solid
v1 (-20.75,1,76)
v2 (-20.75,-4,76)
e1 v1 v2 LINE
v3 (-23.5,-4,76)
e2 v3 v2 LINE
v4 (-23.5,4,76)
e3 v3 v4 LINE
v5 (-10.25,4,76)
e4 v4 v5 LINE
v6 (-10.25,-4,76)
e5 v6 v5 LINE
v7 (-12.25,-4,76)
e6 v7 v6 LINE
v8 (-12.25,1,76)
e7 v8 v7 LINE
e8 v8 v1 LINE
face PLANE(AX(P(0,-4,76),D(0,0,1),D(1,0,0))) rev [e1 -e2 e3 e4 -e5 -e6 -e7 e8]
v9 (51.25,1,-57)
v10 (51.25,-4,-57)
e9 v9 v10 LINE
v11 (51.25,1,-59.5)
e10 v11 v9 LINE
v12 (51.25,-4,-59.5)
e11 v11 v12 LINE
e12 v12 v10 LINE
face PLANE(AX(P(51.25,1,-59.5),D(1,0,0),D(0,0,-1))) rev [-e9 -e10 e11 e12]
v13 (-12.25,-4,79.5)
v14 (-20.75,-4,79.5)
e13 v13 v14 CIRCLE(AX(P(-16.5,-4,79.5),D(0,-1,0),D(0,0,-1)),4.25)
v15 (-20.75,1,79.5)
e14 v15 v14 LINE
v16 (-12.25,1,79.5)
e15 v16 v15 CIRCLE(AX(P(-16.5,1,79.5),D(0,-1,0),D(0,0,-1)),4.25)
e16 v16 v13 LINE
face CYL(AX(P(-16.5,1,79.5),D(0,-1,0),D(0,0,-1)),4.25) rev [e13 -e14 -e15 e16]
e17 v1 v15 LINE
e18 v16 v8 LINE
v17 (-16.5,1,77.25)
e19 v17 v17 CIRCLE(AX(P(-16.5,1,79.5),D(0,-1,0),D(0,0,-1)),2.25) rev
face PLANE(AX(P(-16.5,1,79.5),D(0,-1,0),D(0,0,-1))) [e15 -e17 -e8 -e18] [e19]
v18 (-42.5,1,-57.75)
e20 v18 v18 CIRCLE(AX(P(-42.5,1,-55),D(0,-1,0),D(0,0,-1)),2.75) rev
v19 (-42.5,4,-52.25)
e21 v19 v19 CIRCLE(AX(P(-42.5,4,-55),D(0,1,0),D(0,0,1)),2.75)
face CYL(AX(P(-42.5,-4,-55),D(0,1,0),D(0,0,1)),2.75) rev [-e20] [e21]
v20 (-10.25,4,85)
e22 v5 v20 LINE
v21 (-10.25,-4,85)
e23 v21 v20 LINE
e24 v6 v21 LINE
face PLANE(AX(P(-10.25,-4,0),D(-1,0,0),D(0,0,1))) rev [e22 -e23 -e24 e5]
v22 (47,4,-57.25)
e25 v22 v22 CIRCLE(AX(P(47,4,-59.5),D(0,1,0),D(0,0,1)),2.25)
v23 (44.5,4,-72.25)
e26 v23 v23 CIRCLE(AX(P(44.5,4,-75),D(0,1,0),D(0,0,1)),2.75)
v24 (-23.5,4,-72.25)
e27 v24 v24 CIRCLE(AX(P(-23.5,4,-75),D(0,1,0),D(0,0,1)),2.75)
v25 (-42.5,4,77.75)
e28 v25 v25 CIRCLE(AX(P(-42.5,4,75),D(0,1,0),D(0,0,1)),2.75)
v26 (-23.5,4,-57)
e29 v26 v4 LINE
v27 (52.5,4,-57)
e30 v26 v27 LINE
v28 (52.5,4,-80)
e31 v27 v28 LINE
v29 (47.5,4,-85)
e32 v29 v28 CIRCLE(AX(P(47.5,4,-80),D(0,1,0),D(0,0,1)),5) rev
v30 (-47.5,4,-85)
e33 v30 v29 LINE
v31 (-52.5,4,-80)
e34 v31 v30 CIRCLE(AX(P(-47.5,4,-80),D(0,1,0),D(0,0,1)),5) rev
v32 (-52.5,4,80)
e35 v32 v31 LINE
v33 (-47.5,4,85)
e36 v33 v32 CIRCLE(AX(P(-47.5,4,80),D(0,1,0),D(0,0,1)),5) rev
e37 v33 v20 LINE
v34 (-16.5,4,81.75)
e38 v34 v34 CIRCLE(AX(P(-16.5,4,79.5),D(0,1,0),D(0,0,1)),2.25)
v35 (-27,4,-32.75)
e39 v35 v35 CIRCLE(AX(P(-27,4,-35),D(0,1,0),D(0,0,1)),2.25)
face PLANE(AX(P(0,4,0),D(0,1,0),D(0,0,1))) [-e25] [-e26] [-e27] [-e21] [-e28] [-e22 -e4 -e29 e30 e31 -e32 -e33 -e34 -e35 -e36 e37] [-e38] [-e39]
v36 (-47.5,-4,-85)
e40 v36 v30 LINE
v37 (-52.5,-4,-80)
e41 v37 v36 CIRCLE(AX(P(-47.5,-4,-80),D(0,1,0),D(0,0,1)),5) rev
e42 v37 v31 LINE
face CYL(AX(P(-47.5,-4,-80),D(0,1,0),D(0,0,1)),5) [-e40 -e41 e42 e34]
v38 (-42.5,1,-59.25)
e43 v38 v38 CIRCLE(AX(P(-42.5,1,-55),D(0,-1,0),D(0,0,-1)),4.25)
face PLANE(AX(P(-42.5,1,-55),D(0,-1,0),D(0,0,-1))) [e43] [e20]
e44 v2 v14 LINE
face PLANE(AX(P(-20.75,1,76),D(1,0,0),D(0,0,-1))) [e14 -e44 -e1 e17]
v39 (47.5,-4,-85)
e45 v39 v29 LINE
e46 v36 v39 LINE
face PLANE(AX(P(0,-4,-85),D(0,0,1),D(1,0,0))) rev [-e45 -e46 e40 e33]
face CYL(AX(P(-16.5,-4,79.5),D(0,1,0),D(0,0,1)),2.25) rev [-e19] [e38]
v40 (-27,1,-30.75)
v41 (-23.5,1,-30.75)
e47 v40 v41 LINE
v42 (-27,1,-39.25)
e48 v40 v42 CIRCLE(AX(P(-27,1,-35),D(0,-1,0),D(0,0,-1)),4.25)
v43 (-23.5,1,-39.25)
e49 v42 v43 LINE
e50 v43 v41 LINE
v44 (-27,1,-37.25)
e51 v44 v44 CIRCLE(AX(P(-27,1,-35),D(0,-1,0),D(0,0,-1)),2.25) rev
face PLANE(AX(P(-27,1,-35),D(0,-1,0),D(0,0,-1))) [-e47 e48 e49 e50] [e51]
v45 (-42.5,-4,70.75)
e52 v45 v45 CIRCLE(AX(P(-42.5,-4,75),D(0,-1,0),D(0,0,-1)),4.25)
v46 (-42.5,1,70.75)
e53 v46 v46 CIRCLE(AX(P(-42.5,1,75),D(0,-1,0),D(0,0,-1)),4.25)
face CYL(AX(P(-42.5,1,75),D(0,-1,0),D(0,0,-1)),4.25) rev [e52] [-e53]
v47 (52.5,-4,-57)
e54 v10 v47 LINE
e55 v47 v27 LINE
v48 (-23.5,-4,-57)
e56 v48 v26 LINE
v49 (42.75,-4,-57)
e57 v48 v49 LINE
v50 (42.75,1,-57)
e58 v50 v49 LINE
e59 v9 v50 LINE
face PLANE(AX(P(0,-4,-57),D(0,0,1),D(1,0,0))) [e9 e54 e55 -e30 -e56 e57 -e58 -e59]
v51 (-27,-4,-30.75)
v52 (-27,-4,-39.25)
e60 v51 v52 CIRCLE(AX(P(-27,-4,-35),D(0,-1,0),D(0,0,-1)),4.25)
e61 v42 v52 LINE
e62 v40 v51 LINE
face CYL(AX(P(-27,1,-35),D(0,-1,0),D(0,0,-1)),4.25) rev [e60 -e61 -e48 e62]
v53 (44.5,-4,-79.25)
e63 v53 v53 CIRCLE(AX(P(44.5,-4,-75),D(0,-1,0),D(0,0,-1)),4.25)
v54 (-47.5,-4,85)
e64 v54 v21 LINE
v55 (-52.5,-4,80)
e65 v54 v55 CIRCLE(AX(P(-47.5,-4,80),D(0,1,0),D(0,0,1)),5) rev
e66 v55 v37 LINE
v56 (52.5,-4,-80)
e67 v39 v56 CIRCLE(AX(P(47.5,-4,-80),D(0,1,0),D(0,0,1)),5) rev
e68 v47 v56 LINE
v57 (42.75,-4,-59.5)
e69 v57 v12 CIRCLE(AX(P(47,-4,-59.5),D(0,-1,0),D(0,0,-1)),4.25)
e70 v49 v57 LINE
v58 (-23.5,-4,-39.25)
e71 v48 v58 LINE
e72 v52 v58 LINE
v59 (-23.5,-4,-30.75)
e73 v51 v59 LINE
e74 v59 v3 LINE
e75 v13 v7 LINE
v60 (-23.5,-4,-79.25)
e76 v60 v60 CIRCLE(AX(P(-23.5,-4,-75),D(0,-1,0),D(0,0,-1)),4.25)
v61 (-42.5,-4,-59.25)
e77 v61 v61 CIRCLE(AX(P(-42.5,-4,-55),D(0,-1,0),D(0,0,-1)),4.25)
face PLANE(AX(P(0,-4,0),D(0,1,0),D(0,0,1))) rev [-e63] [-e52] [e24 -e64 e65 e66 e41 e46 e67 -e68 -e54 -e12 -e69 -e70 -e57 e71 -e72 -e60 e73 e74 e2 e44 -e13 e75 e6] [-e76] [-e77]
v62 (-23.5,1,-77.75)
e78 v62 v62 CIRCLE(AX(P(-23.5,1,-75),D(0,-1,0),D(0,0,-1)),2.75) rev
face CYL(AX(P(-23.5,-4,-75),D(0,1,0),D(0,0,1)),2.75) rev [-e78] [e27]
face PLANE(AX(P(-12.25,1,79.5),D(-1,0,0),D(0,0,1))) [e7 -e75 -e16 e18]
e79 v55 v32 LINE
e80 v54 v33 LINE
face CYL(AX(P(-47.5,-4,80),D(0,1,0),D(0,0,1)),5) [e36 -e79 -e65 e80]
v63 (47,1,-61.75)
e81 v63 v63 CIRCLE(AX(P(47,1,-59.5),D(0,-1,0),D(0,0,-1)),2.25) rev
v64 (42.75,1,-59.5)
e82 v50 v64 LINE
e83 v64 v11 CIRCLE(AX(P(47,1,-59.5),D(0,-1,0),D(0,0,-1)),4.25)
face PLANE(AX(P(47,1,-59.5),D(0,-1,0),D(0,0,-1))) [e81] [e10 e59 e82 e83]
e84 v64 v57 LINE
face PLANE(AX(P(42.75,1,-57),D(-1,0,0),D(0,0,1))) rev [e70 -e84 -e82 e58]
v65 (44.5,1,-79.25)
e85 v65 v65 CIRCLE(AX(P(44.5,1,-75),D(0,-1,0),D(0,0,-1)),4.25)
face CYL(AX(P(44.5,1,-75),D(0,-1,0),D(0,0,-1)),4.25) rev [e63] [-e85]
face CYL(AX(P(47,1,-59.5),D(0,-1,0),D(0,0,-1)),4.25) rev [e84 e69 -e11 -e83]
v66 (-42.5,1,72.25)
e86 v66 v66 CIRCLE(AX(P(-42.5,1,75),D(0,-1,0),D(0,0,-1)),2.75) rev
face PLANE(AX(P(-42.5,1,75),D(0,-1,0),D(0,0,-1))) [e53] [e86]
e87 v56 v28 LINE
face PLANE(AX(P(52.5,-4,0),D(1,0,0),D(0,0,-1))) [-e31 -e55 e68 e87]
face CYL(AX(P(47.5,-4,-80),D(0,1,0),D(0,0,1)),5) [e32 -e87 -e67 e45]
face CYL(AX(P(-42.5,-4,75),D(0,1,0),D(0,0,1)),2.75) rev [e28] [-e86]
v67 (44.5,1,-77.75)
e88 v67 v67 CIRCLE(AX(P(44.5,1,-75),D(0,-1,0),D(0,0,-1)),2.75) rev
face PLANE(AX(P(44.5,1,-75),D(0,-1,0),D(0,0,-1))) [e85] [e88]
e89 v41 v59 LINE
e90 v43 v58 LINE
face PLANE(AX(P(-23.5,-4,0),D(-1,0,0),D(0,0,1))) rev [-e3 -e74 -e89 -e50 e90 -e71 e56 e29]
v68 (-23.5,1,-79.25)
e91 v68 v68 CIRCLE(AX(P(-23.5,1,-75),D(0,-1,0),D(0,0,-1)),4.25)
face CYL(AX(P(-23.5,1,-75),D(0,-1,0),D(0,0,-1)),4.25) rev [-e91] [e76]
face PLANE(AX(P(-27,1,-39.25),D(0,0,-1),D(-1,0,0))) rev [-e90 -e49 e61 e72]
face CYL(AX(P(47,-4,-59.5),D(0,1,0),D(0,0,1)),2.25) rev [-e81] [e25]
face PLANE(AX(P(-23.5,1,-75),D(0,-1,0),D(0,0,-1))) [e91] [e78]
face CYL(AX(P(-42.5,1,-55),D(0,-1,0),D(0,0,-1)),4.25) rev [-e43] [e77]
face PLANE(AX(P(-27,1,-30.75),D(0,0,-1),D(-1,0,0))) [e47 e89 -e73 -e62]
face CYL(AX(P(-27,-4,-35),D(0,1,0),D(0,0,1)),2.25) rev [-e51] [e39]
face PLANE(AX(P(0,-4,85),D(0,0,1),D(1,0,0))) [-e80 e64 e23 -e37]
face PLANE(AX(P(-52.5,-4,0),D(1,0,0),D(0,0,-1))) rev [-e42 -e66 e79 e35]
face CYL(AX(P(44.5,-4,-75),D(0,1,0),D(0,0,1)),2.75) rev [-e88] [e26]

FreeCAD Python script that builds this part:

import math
import FreeCAD as App
import Part
import Sketcher
from FreeCAD import Vector
Q = App.Units.Quantity

doc = App.newDocument("Part")
params = doc.addObject("Spreadsheet::Sheet", "Params")
for row, (alias, value) in enumerate([
    ("sketch1_radius", "5 mm"),
    ("sketch1_diameter", "5.5 mm"),
    ("sketch1_diameter2", "4.5 mm"),
    ("sketch1_width", "76 mm"),
    ("sketch1_width2", "95 mm"),
    ("pad1_length", "4 mm"),
    ("pad1_length2", "4 mm"),
    ("sketch2_diameter", "8.5 mm"),
    ("sketch2_width", "3.5 mm"),
    ("sketch2_height", "2.5 mm"),
    ("pocket1_length", "5 mm"),
], start=1):
    params.set(f"A{row}", alias)
    params.set(f"B{row}", "=" + value)
    params.setAlias(f"B{row}", alias)

body = doc.addObject("PartDesign::Body", "Body")

sketch1 = body.newObject("Sketcher::SketchObject", "Sketch")
sketch1.AttachmentSupport = (doc.getObject("XZ_Plane"), [""])
sketch1.MapMode = "FlatFace"
sketch1.addGeometry(Part.ArcOfCircle(Part.Circle(Vector(-47.5, 80, 0), Vector(0, 0, 1), 5), math.radians(90), math.radians(180)), False)
sketch1.addGeometry(Part.LineSegment(Vector(-47.5, 85, 0), Vector(-10.2, 85, 0)), False)
sketch1.addGeometry(Part.LineSegment(Vector(-10.2, 85, 0), Vector(-10.2, 76, 0)), False)
sketch1.addGeometry(Part.LineSegment(Vector(-10.2, 76, 0), Vector(-23.5, 76, 0)), False)
sketch1.addGeometry(Part.LineSegment(Vector(-23.5, 76, 0), Vector(-23.5, -57, 0)), False)
sketch1.addGeometry(Part.LineSegment(Vector(-23.5, -57, 0), Vector(52.5, -57, 0)), False)
sketch1.addGeometry(Part.LineSegment(Vector(52.5, -57, 0), Vector(52.5, -80, 0)), False)
sketch1.addGeometry(Part.ArcOfCircle(Part.Circle(Vector(47.5, -80, 0), Vector(0, 0, 1), 5), math.radians(-90), math.radians(0)), False)
sketch1.addGeometry(Part.LineSegment(Vector(47.5, -85, 0), Vector(-47.5, -85, 0)), False)
sketch1.addGeometry(Part.ArcOfCircle(Part.Circle(Vector(-47.5, -80, 0), Vector(0, 0, 1), 5), math.radians(180), math.radians(270)), False)
sketch1.addGeometry(Part.LineSegment(Vector(-52.5, -80, 0), Vector(-52.5, 80, 0)), False)
sketch1.addGeometry(Part.Circle(Vector(-42.5, 75, 0), Vector(0, 0, 1), 2.8), False)
sketch1.addGeometry(Part.Circle(Vector(-16.5, 79.5, 0), Vector(0, 0, 1), 2.2), False)
sketch1.addGeometry(Part.Circle(Vector(-27, -35, 0), Vector(0, 0, 1), 2.2), False)
sketch1.addGeometry(Part.Circle(Vector(-42.5, -55, 0), Vector(0, 0, 1), 2.8), False)
sketch1.addGeometry(Part.Circle(Vector(-23.5, -75, 0), Vector(0, 0, 1), 2.8), False)
sketch1.addGeometry(Part.Circle(Vector(47, -59.5, 0), Vector(0, 0, 1), 2.2), False)
sketch1.addGeometry(Part.Circle(Vector(44.5, -75, 0), Vector(0, 0, 1), 2.8), False)
sketch1.addConstraint(Sketcher.Constraint("Tangent", 0, 1, 1, 1))
sketch1.addConstraint(Sketcher.Constraint("Coincident", 1, 2, 2, 1))
sketch1.addConstraint(Sketcher.Constraint("Coincident", 2, 2, 3, 1))
sketch1.addConstraint(Sketcher.Constraint("Coincident", 3, 2, 4, 1))
sketch1.addConstraint(Sketcher.Constraint("Coincident", 4, 2, 5, 1))
sketch1.addConstraint(Sketcher.Constraint("Coincident", 5, 2, 6, 1))
sketch1.addConstraint(Sketcher.Constraint("Tangent", 6, 2, 7, 2))
sketch1.addConstraint(Sketcher.Constraint("Tangent", 7, 1, 8, 1))
sketch1.addConstraint(Sketcher.Constraint("Tangent", 8, 2, 9, 2))
sketch1.addConstraint(Sketcher.Constraint("Tangent", 9, 1, 10, 1))
sketch1.addConstraint(Sketcher.Constraint("Tangent", 10, 2, 0, 2))
sketch1.addConstraint(Sketcher.Constraint("Horizontal", 1))
sketch1.addConstraint(Sketcher.Constraint("Vertical", 2))
sketch1.addConstraint(Sketcher.Constraint("Horizontal", 3))
sketch1.addConstraint(Sketcher.Constraint("Vertical", 4))
sketch1.addConstraint(Sketcher.Constraint("Horizontal", 5))
sketch1.addConstraint(Sketcher.Constraint("Vertical", 6))
sketch1.addConstraint(Sketcher.Constraint("Horizontal", 8))
sketch1.addConstraint(Sketcher.Constraint("Vertical", 10))
sketch1.addConstraint(Sketcher.Constraint("Equal", 0, 7))
sketch1.addConstraint(Sketcher.Constraint("Equal", 7, 9))
sketch1.addConstraint(Sketcher.Constraint("Equal", 12, 13))
sketch1.addConstraint(Sketcher.Constraint("Equal", 11, 14))
sketch1.addConstraint(Sketcher.Constraint("Equal", 14, 15))
sketch1.addConstraint(Sketcher.Constraint("Equal", 13, 16))
sketch1.addConstraint(Sketcher.Constraint("Equal", 15, 17))
sketch1.addConstraint(Sketcher.Constraint("Symmetric", 0, 3, 7, 3, -1, 1))
sketch1.addConstraint(Sketcher.Constraint("Horizontal", 15, 3, 17, 3))
sketch1.addConstraint(Sketcher.Constraint("Vertical", 11, 3, 14, 3))
sketch1.addConstraint(Sketcher.Constraint("Vertical", 15, 3, 3, 2))
sketch1.addConstraint(Sketcher.Constraint("Radius", 0, Q("5 mm")))
sketch1.addConstraint(Sketcher.Constraint("Diameter", 11, Q("5.5 mm")))
sketch1.addConstraint(Sketcher.Constraint("Diameter", 12, Q("4.5 mm")))
sketch1.addConstraint(Sketcher.Constraint("DistanceX", 5, 1, 5, 2, Q("76 mm")))
sketch1.addConstraint(Sketcher.Constraint("DistanceX", 8, 2, 8, 1, Q("95 mm")))
sketch1.addConstraint(Sketcher.Constraint("DistanceY", 2, 2, 2, 1, Q("9 mm")))
sketch1.addConstraint(Sketcher.Constraint("DistanceY", 4, 2, 4, 1, Q("133 mm")))
sketch1.addConstraint(Sketcher.Constraint("DistanceY", 6, 2, 6, 1, Q("23 mm")))
sketch1.addConstraint(Sketcher.Constraint("DistanceY", -1, 1, 11, 3, Q("75 mm")))
sketch1.addConstraint(Sketcher.Constraint("DistanceX", 13, 3, -1, 1, Q("27 mm")))
sketch1.addConstraint(Sketcher.Constraint("DistanceY", 13, 3, -1, 1, Q("35 mm")))
sketch1.addConstraint(Sketcher.Constraint("DistanceY", 14, 3, -1, 1, Q("55 mm")))
sketch1.addConstraint(Sketcher.Constraint("DistanceY", 15, 3, -1, 1, Q("75 mm")))
sketch1.addConstraint(Sketcher.Constraint("DistanceX", -1, 1, 16, 3, Q("47 mm")))
sketch1.addConstraint(Sketcher.Constraint("DistanceX", 0, 3, 11, 3, Q("5 mm")))
sketch1.addConstraint(Sketcher.Constraint("DistanceX", 11, 3, 12, 3, Q("26 mm")))
sketch1.addConstraint(Sketcher.Constraint("DistanceX", 17, 3, 7, 3, Q("3 mm")))
sketch1.addConstraint(Sketcher.Constraint("DistanceX", 1, 1, 1, 2, Q("37.25 mm")))
sketch1.addConstraint(Sketcher.Constraint("DistanceY", -1, 1, 12, 3, Q("79.5 mm")))
sketch1.addConstraint(Sketcher.Constraint("DistanceY", 16, 3, -1, 1, Q("59.5 mm")))
sketch1.setExpression("Constraints[30]", "Params.sketch1_radius")
sketch1.setExpression("Constraints[31]", "Params.sketch1_diameter")
sketch1.setExpression("Constraints[32]", "Params.sketch1_diameter2")
sketch1.setExpression("Constraints[33]", "Params.sketch1_width")
sketch1.setExpression("Constraints[34]", "Params.sketch1_width2")
pad1 = body.newObject("PartDesign::Pad", "Pad")
pad1.Profile = sketch1
pad1.Type = "TwoLengths"
pad1.setExpression("Length", "Params.pad1_length")
pad1.setExpression("Length2", "Params.pad1_length2")
pad1.Reversed = True

sketch2 = body.newObject("Sketcher::SketchObject", "Sketch001")
sketch2.AttachmentSupport = (doc.getObject("XZ_Plane"), [""])
sketch2.MapMode = "FlatFace"
sketch2.AttachmentOffset = App.Placement(Vector(0, 0, 4), App.Rotation())
sketch2.addGeometry(Part.Circle(Vector(-23.5, -75, 0), Vector(0, 0, 1), 4.2), False)
sketch2.addGeometry(Part.Circle(Vector(-42.5, -55, 0), Vector(0, 0, 1), 4.2), False)
sketch2.addGeometry(Part.Circle(Vector(-42.5, 75, 0), Vector(0, 0, 1), 4.2), False)
sketch2.addGeometry(Part.Circle(Vector(44.5, -75, 0), Vector(0, 0, 1), 4.2), False)
sketch2.addGeometry(Part.LineSegment(Vector(-23.5, -30.8, 0), Vector(-27, -30.8, 0)), False)
sketch2.addGeometry(Part.ArcOfCircle(Part.Circle(Vector(-27, -35, 0), Vector(0, 0, 1), 4.2), math.radians(90), math.radians(270)), False)
sketch2.addGeometry(Part.LineSegment(Vector(-27, -39.2, 0), Vector(-23.5, -39.2, 0)), False)
sketch2.addGeometry(Part.LineSegment(Vector(-23.5, -39.2, 0), Vector(-23.5, -30.8, 0)), False)
sketch2.addGeometry(Part.LineSegment(Vector(51.2, -59.5, 0), Vector(51.2, -57, 0)), False)
sketch2.addGeometry(Part.LineSegment(Vector(51.2, -57, 0), Vector(42.8, -57, 0)), False)
sketch2.addGeometry(Part.LineSegment(Vector(42.8, -57, 0), Vector(42.8, -59.5, 0)), False)
sketch2.addGeometry(Part.ArcOfCircle(Part.Circle(Vector(47, -59.5, 0), Vector(0, 0, 1), 4.2), math.radians(180), math.radians(360)), False)
sketch2.addGeometry(Part.LineSegment(Vector(-12.2, 76, 0), Vector(-12.2, 79.5, 0)), False)
sketch2.addGeometry(Part.ArcOfCircle(Part.Circle(Vector(-16.5, 79.5, 0), Vector(0, 0, 1), 4.2), math.radians(0), math.radians(180)), False)
sketch2.addGeometry(Part.LineSegment(Vector(-20.8, 79.5, 0), Vector(-20.8, 76, 0)), False)
sketch2.addGeometry(Part.LineSegment(Vector(-20.8, 76, 0), Vector(-12.2, 76, 0)), False)
sketch2.addConstraint(Sketcher.Constraint("Tangent", 4, 2, 5, 1))
sketch2.addConstraint(Sketcher.Constraint("Tangent", 5, 2, 6, 1))
sketch2.addConstraint(Sketcher.Constraint("Coincident", 6, 2, 7, 1))
sketch2.addConstraint(Sketcher.Constraint("Coincident", 7, 2, 4, 1))
sketch2.addConstraint(Sketcher.Constraint("Coincident", 8, 2, 9, 1))
sketch2.addConstraint(Sketcher.Constraint("Coincident", 9, 2, 10, 1))
sketch2.addConstraint(Sketcher.Constraint("Tangent", 10, 2, 11, 1))
sketch2.addConstraint(Sketcher.Constraint("Tangent", 11, 2, 8, 1))
sketch2.addConstraint(Sketcher.Constraint("Tangent", 12, 2, 13, 1))
sketch2.addConstraint(Sketcher.Constraint("Tangent", 13, 2, 14, 1))
sketch2.addConstraint(Sketcher.Constraint("Coincident", 14, 2, 15, 1))
sketch2.addConstraint(Sketcher.Constraint("Coincident", 15, 2, 12, 1))
sketch2.addConstraint(Sketcher.Constraint("Horizontal", 4))
sketch2.addConstraint(Sketcher.Constraint("Horizontal", 6))
sketch2.addConstraint(Sketcher.Constraint("Vertical", 7))
sketch2.addConstraint(Sketcher.Constraint("Vertical", 8))
sketch2.addConstraint(Sketcher.Constraint("Horizontal", 9))
sketch2.addConstraint(Sketcher.Constraint("Vertical", 10))
sketch2.addConstraint(Sketcher.Constraint("Vertical", 12))
sketch2.addConstraint(Sketcher.Constraint("Vertical", 14))
sketch2.addConstraint(Sketcher.Constraint("Horizontal", 15))
sketch2.addConstraint(Sketcher.Constraint("Equal", 0, 1))
sketch2.addConstraint(Sketcher.Constraint("Equal", 1, 2))
sketch2.addConstraint(Sketcher.Constraint("Equal", 2, 3))
sketch2.addConstraint(Sketcher.Constraint("Equal", 3, 5))
sketch2.addConstraint(Sketcher.Constraint("Equal", 5, 11))
sketch2.addConstraint(Sketcher.Constraint("Equal", 11, 13))
sketch2.addConstraint(Sketcher.Constraint("Horizontal", 0, 3, 3, 3))
sketch2.addConstraint(Sketcher.Constraint("Vertical", 1, 3, 2, 3))
sketch2.addConstraint(Sketcher.Constraint("Vertical", 0, 3, 6, 2))
sketch2.addConstraint(Sketcher.Constraint("Equal", 6, 12))
sketch2.addConstraint(Sketcher.Constraint("Diameter", 0, Q("8.5 mm")))
sketch2.addConstraint(Sketcher.Constraint("DistanceX", 4, 2, 4, 1, Q("3.5 mm")))
sketch2.addConstraint(Sketcher.Constraint("DistanceY", 8, 1, 8, 2, Q("2.5 mm")))
sketch2.addConstraint(Sketcher.Constraint("DistanceY", 0, 3, -1, 1, Q("75 mm")))
sketch2.addConstraint(Sketcher.Constraint("DistanceY", 1, 3, -1, 1, Q("55 mm")))
sketch2.addConstraint(Sketcher.Constraint("DistanceY", -1, 1, 2, 3, Q("75 mm")))
sketch2.addConstraint(Sketcher.Constraint("DistanceX", 5, 3, -1, 1, Q("27 mm")))
sketch2.addConstraint(Sketcher.Constraint("DistanceY", 5, 3, -1, 1, Q("35 mm")))
sketch2.addConstraint(Sketcher.Constraint("DistanceX", -1, 1, 11, 3, Q("47 mm")))
sketch2.addConstraint(Sketcher.Constraint("DistanceY", 8, 2, -1, 1, Q("57 mm")))
sketch2.addConstraint(Sketcher.Constraint("DistanceY", -1, 1, 14, 2, Q("76 mm")))
sketch2.addConstraint(Sketcher.Constraint("DistanceX", 1, 3, 0, 3, Q("19 mm")))
sketch2.addConstraint(Sketcher.Constraint("DistanceX", 0, 3, 3, 3, Q("68 mm")))
sketch2.addConstraint(Sketcher.Constraint("DistanceX", 2, 3, 13, 3, Q("26 mm")))
sketch2.setExpression("Constraints[31]", "Params.sketch2_diameter")
sketch2.setExpression("Constraints[32]", "Params.sketch2_width")
sketch2.setExpression("Constraints[33]", "Params.sketch2_height")
pocket1 = body.newObject("PartDesign::Pocket", "Pocket")
pocket1.Profile = sketch2
pocket1.setExpression("Length", "Params.pocket1_length")

doc.recompute()
